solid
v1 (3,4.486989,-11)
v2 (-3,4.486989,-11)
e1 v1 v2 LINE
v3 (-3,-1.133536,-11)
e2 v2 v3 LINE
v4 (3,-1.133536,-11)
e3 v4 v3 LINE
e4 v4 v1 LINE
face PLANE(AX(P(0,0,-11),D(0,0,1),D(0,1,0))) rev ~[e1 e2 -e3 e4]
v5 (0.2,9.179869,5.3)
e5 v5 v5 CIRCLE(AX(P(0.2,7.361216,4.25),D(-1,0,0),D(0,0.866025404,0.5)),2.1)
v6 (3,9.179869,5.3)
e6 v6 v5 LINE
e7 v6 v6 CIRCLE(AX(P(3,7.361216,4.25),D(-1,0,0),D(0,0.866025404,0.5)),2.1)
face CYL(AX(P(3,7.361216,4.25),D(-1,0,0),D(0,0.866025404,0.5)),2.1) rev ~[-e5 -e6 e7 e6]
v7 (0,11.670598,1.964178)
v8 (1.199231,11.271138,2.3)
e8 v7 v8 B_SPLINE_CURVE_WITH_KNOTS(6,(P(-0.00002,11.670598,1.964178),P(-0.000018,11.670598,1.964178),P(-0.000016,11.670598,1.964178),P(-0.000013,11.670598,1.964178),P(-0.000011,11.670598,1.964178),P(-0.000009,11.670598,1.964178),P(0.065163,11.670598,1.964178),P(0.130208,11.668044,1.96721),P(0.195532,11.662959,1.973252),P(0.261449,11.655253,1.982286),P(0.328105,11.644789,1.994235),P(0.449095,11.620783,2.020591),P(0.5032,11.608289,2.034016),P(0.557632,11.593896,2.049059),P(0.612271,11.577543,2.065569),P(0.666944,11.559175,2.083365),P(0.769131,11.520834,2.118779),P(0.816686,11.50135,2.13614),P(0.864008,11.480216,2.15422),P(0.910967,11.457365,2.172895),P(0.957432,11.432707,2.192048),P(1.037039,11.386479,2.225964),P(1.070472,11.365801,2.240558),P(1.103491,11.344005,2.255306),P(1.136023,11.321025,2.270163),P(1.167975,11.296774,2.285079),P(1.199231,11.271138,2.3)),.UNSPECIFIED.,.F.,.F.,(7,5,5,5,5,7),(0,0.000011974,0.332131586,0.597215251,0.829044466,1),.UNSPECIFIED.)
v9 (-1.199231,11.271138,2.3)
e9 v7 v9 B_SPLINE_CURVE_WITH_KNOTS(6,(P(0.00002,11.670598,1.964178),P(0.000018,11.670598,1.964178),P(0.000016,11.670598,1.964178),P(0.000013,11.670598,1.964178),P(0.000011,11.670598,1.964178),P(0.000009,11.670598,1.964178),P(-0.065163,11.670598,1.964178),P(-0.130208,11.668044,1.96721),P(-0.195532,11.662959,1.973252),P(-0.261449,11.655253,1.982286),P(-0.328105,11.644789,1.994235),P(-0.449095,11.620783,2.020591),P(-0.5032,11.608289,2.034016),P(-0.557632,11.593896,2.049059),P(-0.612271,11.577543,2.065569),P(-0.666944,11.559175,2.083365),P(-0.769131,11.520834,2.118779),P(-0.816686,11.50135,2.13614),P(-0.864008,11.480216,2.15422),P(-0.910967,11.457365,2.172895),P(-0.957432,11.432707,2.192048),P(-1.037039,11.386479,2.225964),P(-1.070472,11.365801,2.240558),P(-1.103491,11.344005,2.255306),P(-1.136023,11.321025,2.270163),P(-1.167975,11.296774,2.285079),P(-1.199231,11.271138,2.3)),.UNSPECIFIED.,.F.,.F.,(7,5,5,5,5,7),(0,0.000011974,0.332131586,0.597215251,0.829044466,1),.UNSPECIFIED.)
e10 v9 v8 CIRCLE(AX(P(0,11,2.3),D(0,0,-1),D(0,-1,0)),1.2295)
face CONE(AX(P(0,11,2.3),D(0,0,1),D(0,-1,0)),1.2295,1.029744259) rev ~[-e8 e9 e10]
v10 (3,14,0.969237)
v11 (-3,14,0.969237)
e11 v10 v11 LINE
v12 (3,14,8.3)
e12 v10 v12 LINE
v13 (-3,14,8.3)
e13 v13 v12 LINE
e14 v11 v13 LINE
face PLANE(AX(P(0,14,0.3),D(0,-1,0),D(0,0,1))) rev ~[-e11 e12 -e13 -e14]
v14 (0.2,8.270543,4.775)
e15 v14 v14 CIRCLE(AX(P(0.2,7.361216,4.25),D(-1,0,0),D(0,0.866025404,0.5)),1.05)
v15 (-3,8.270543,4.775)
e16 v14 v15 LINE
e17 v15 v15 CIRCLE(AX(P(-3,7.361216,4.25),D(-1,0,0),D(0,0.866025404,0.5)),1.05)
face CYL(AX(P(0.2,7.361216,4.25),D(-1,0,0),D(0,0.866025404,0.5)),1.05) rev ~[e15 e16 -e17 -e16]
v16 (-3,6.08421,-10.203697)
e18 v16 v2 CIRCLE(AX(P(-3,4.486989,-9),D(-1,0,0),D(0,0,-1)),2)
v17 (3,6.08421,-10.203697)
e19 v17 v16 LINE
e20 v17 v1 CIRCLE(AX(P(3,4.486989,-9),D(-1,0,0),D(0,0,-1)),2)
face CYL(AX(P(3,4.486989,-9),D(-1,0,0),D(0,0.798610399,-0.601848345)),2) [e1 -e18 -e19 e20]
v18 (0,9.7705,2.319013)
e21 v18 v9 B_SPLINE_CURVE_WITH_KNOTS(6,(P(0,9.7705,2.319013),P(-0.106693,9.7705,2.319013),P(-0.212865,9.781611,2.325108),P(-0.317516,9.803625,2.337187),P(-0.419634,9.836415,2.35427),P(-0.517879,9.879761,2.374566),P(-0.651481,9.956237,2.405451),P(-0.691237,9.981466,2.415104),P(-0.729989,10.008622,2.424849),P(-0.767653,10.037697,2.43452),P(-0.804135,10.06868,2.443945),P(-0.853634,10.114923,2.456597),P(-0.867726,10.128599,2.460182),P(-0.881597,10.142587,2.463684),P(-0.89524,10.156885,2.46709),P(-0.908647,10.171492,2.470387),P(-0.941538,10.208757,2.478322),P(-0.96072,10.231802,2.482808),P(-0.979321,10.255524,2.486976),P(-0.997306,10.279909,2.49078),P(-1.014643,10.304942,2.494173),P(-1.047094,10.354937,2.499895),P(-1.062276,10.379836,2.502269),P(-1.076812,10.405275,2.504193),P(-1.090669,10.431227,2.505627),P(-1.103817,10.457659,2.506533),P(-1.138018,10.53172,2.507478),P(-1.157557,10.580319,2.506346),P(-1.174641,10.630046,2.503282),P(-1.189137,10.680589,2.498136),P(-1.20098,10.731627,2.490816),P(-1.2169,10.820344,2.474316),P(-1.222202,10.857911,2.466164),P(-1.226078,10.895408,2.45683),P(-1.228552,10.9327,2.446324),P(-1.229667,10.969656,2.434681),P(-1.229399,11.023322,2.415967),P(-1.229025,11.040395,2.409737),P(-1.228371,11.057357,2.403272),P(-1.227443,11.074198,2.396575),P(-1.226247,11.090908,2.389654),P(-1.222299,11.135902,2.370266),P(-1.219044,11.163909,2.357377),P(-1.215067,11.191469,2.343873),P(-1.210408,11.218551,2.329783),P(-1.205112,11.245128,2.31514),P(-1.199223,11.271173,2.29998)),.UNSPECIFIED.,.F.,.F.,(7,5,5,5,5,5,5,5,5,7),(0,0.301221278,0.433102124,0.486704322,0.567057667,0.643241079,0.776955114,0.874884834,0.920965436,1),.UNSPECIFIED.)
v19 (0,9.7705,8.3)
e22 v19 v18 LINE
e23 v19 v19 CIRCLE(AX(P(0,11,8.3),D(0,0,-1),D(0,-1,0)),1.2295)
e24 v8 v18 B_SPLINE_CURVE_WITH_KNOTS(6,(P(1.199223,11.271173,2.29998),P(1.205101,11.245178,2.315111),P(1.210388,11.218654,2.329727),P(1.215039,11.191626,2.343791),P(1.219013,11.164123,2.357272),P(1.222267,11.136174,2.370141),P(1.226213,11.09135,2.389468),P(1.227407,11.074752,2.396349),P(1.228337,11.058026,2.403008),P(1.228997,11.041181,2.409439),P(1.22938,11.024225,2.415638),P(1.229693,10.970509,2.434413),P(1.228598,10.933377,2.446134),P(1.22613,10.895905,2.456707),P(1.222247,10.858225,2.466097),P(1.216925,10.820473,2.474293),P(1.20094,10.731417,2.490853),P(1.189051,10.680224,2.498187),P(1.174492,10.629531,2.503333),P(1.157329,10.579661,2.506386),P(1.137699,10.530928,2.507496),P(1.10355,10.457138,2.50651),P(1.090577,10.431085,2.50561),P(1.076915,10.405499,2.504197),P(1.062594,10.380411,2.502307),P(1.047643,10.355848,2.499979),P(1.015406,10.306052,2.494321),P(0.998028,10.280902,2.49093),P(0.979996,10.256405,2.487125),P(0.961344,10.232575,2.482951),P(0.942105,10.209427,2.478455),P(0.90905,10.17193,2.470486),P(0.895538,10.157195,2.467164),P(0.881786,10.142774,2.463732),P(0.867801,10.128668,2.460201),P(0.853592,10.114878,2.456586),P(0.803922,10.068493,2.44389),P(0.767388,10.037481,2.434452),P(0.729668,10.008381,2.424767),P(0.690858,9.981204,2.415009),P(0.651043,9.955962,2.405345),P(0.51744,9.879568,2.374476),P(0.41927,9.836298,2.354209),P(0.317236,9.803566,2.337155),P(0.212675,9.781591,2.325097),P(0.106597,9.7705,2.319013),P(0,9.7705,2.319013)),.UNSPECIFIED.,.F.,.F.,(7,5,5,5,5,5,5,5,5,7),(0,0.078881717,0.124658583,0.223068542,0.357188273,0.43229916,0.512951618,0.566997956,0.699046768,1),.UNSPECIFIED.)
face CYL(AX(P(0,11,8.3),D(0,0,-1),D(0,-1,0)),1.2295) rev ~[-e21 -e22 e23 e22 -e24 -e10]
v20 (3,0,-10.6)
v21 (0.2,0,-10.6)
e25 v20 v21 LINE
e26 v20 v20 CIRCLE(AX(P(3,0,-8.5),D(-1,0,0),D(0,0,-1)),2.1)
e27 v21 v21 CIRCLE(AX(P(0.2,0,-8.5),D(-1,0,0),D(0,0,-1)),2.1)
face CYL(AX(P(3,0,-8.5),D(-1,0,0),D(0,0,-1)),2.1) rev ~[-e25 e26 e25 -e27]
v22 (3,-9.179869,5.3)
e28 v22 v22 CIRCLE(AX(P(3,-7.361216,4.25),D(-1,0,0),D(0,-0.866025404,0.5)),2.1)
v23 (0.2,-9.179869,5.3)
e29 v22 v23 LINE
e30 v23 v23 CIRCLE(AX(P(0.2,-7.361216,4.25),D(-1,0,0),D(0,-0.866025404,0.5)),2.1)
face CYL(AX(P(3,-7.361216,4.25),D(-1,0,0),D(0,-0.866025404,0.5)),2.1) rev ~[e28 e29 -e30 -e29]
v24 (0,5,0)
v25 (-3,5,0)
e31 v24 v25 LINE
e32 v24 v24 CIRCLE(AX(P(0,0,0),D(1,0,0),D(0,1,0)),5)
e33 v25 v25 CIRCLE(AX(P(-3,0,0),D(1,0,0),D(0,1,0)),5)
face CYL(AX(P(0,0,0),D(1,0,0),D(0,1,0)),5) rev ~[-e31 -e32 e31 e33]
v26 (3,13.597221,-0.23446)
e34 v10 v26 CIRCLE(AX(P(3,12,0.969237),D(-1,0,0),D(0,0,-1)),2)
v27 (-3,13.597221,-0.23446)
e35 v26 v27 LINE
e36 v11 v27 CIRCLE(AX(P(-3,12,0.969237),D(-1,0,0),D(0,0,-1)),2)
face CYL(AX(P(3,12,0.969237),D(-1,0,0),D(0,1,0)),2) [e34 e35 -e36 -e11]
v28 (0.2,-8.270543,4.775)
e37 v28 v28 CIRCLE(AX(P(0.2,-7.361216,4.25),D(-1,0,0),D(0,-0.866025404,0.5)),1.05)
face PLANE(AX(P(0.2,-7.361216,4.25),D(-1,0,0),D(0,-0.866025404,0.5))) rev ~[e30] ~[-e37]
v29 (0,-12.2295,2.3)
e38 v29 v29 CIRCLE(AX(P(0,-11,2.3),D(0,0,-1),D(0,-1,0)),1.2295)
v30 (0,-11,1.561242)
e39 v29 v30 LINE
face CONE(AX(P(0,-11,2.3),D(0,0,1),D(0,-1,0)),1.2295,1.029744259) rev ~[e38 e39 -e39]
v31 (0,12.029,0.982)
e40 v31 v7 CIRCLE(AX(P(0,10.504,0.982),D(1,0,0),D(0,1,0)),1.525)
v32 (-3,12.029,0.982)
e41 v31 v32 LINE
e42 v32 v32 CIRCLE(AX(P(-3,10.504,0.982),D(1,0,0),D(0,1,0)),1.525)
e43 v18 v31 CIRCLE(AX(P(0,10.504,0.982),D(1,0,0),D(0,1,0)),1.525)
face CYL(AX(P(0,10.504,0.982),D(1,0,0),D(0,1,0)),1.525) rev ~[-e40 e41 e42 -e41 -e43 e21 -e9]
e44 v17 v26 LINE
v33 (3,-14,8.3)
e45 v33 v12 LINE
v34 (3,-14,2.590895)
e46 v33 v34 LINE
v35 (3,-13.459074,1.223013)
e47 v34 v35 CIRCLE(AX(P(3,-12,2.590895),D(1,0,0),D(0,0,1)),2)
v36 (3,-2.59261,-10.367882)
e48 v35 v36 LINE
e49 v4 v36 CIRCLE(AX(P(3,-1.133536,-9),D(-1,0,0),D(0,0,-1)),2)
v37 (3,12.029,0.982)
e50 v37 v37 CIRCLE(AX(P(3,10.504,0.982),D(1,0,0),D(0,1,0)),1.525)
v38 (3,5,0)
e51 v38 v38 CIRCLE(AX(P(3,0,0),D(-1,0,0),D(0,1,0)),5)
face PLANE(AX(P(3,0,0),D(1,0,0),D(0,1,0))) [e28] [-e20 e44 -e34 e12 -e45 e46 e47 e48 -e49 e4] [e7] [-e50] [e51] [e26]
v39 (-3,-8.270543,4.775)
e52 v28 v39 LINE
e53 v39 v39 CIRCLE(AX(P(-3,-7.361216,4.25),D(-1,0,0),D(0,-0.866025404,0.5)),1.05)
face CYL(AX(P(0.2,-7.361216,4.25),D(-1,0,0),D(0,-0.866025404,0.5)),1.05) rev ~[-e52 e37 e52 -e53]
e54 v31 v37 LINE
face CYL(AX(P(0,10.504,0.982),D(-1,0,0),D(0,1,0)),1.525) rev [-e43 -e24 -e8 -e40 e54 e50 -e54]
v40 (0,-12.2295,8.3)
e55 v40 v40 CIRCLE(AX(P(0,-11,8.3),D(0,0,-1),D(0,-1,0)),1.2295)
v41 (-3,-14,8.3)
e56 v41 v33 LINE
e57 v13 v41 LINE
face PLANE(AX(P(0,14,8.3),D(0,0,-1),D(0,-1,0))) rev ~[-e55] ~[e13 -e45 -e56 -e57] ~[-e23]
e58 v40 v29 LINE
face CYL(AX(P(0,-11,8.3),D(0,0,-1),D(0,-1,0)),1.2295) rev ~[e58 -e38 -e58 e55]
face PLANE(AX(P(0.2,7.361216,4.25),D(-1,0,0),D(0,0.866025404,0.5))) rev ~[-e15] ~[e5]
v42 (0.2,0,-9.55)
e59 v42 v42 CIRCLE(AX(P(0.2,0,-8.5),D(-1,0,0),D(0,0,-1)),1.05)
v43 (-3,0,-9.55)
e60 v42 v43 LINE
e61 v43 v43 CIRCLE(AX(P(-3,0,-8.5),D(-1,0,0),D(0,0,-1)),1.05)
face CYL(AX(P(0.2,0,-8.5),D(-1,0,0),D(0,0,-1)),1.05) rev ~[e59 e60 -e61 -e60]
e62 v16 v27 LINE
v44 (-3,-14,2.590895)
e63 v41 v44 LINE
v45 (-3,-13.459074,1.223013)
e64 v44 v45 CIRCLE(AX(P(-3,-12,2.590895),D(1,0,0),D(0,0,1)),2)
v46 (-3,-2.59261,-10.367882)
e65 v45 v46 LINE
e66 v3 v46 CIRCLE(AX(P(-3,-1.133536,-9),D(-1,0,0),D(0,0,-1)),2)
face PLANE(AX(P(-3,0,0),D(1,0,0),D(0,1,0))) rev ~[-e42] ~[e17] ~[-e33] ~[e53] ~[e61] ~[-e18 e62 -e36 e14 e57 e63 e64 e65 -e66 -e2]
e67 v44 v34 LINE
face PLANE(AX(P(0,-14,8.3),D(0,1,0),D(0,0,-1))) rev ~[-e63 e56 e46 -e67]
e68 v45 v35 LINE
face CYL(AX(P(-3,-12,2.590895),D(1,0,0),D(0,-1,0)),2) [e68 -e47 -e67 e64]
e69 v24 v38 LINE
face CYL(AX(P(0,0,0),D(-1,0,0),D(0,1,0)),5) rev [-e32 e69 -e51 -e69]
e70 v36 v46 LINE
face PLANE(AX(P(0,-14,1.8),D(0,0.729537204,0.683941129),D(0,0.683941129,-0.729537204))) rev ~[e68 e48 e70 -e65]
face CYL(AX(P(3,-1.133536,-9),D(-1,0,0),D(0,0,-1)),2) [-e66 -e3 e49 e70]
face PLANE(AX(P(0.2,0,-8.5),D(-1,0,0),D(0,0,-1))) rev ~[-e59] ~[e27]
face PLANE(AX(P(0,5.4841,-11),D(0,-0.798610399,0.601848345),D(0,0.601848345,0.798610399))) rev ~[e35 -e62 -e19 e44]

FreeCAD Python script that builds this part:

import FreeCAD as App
import Part
import Sketcher
from FreeCAD import Vector
Q = App.Units.Quantity


def edges_at(feature, points):
    """Names of the edges that pass closest to the given points."""
    edges = feature.Shape.Edges
    near = lambda p: min(range(len(edges)), key=lambda i: edges[i].distToShape(Part.Vertex(*p))[0])
    return sorted({f"Edge{near(p) + 1}" for p in points})

doc = App.newDocument("Part")
body = doc.addObject("PartDesign::Body", "Body")

sketch1 = body.newObject("Sketcher::SketchObject", "Sketch")
sketch1.AttachmentSupport = (doc.getObject("YZ_Plane"), [""])
sketch1.MapMode = "FlatFace"
sketch1.addGeometry([
    Part.LineSegment(Vector(14, 0.3, 0), Vector(14, 8.3, 0)),
    Part.LineSegment(Vector(14, 8.3, 0), Vector(-14, 8.3, 0)),
    Part.LineSegment(Vector(-14, 8.3, 0), Vector(-14, 1.8, 0)),
    Part.LineSegment(Vector(-14, 1.8, 0), Vector(-2, -11, 0)),
    Part.LineSegment(Vector(-2, -11, 0), Vector(5.5, -11, 0)),
    Part.LineSegment(Vector(5.5, -11, 0), Vector(14, 0.3, 0)),
    Part.Circle(Vector(0, 0, 0), Vector(0, 0, 1), 5),
    Part.Circle(Vector(10.5, 1, 0), Vector(0, 0, 1), 1.5),
], False)
sketch1.addConstraint([
    Sketcher.Constraint("Coincident", 0, 2, 1, 1),
    Sketcher.Constraint("Coincident", 1, 2, 2, 1),
    Sketcher.Constraint("Coincident", 2, 2, 3, 1),
    Sketcher.Constraint("Coincident", 3, 2, 4, 1),
    Sketcher.Constraint("Coincident", 4, 2, 5, 1),
    Sketcher.Constraint("Coincident", 5, 2, 0, 1),
    Sketcher.Constraint("Vertical", 0),
    Sketcher.Constraint("Horizontal", 1),
    Sketcher.Constraint("Vertical", 2),
    Sketcher.Constraint("Horizontal", 4),
    Sketcher.Constraint("Coincident", 6, 3, -1, 1),
    Sketcher.Constraint("Diameter", 6, Q("10 mm")),
    Sketcher.Constraint("Diameter", 7, Q("3.05 mm")),
    Sketcher.Constraint("DistanceY", 0, 1, 0, 2, Q("8 mm")),
    Sketcher.Constraint("DistanceY", 2, 2, 2, 1, Q("6.5 mm")),
    Sketcher.Constraint("DistanceX", -1, 1, 0, 2, Q("14 mm")),
    Sketcher.Constraint("DistanceX", 1, 2, -1, 1, Q("14 mm")),
    Sketcher.Constraint("DistanceX", 3, 2, -1, 1, Q("2 mm")),
    Sketcher.Constraint("DistanceY", -1, 1, 0, 2, Q("8.3 mm")),
    Sketcher.Constraint("DistanceX", -1, 1, 7, 3, Q("10.504 mm")),
    Sketcher.Constraint("DistanceY", -1, 1, 7, 3, Q("0.982 mm")),
    Sketcher.Constraint("DistanceY", 3, 2, -1, 1, Q("11 mm")),
    Sketcher.Constraint("DistanceX", 4, 1, 4, 2, Q("7.484 mm")),
])
pad1 = body.newObject("PartDesign::Pad", "Pad")
pad1.Profile = sketch1
pad1.Length = 6
pad1.Midplane = True

sketch2 = body.newObject("Sketcher::SketchObject", "Sketch001")
sketch2.AttachmentSupport = (doc.getObject("YZ_Plane"), [""])
sketch2.MapMode = "FlatFace"
sketch2.AttachmentOffset = App.Placement(Vector(0, 0, 3), App.Rotation())
sketch2.addGeometry(Part.Circle(Vector(0, -8.5, 0), Vector(0, 0, 1), 1.1), False)
sketch2.addConstraint([
    Sketcher.Constraint("PointOnObject", 0, 3, -2),
    Sketcher.Constraint("Diameter", 0, Q("2.1 mm")),
    Sketcher.Constraint("DistanceY", 0, 3, -1, 1, Q("8.5 mm")),
])
doc.recompute()
hole = body.newObject("PartDesign::Hole", "Hole")
hole.Profile = sketch2
hole.ThreadType = "None"
hole.Diameter = 2.1
hole.DepthType = "ThroughAll"
hole.HoleCutType = "Counterbore"
hole.HoleCutDiameter = 4.2
hole.HoleCutDepth = 2.8
doc.recompute()

polarpattern = body.newObject("PartDesign::PolarPattern", "PolarPattern")
polarpattern.Originals = [hole]
polarpattern.Axis = (doc.getObject("X_Axis"), [""])
polarpattern.Angle = 360
polarpattern.Occurrences = 3
body.Tip = polarpattern

sketch3 = body.newObject("Sketcher::SketchObject", "Sketch002")
sketch3.AttachmentSupport = (doc.getObject("XY_Plane"), [""])
sketch3.MapMode = "FlatFace"
sketch3.AttachmentOffset = App.Placement(Vector(0, 0, 8.3), App.Rotation())
sketch3.addGeometry([
    Part.Circle(Vector(0, -11, 0), Vector(0, 0, 1), 1.2),
    Part.Circle(Vector(0, 11, 0), Vector(0, 0, 1), 1.2),
], False)
sketch3.addConstraint([
    Sketcher.Constraint("Equal", 0, 1),
    Sketcher.Constraint("Symmetric", 0, 3, 1, 3, -1, 1),
    Sketcher.Constraint("PointOnObject", 0, 3, -2),
    Sketcher.Constraint("Diameter", 0, Q("2.459 mm")),
    Sketcher.Constraint("DistanceY", 0, 3, -1, 1, Q("11 mm")),
])
doc.recompute()
hole2 = body.newObject("PartDesign::Hole", "Hole001")
hole2.Profile = sketch3
hole2.ThreadType = "None"
hole2.Diameter = 2.459
hole2.DepthType = "Dimension"
hole2.Depth = 6
hole2.DrillPoint = "Angled"
hole2.DrillPointAngle = 118
doc.recompute()

fillet = body.newObject("PartDesign::Fillet", "Fillet")
fillet.Base = (hole2, edges_at(hole2, [
    (0, -2, -11),
    (0, 5.484, -11),
    (0, -14, 1.8),
    (0, 14, 0.3),
]))
fillet.Radius = 2

doc.recompute()
